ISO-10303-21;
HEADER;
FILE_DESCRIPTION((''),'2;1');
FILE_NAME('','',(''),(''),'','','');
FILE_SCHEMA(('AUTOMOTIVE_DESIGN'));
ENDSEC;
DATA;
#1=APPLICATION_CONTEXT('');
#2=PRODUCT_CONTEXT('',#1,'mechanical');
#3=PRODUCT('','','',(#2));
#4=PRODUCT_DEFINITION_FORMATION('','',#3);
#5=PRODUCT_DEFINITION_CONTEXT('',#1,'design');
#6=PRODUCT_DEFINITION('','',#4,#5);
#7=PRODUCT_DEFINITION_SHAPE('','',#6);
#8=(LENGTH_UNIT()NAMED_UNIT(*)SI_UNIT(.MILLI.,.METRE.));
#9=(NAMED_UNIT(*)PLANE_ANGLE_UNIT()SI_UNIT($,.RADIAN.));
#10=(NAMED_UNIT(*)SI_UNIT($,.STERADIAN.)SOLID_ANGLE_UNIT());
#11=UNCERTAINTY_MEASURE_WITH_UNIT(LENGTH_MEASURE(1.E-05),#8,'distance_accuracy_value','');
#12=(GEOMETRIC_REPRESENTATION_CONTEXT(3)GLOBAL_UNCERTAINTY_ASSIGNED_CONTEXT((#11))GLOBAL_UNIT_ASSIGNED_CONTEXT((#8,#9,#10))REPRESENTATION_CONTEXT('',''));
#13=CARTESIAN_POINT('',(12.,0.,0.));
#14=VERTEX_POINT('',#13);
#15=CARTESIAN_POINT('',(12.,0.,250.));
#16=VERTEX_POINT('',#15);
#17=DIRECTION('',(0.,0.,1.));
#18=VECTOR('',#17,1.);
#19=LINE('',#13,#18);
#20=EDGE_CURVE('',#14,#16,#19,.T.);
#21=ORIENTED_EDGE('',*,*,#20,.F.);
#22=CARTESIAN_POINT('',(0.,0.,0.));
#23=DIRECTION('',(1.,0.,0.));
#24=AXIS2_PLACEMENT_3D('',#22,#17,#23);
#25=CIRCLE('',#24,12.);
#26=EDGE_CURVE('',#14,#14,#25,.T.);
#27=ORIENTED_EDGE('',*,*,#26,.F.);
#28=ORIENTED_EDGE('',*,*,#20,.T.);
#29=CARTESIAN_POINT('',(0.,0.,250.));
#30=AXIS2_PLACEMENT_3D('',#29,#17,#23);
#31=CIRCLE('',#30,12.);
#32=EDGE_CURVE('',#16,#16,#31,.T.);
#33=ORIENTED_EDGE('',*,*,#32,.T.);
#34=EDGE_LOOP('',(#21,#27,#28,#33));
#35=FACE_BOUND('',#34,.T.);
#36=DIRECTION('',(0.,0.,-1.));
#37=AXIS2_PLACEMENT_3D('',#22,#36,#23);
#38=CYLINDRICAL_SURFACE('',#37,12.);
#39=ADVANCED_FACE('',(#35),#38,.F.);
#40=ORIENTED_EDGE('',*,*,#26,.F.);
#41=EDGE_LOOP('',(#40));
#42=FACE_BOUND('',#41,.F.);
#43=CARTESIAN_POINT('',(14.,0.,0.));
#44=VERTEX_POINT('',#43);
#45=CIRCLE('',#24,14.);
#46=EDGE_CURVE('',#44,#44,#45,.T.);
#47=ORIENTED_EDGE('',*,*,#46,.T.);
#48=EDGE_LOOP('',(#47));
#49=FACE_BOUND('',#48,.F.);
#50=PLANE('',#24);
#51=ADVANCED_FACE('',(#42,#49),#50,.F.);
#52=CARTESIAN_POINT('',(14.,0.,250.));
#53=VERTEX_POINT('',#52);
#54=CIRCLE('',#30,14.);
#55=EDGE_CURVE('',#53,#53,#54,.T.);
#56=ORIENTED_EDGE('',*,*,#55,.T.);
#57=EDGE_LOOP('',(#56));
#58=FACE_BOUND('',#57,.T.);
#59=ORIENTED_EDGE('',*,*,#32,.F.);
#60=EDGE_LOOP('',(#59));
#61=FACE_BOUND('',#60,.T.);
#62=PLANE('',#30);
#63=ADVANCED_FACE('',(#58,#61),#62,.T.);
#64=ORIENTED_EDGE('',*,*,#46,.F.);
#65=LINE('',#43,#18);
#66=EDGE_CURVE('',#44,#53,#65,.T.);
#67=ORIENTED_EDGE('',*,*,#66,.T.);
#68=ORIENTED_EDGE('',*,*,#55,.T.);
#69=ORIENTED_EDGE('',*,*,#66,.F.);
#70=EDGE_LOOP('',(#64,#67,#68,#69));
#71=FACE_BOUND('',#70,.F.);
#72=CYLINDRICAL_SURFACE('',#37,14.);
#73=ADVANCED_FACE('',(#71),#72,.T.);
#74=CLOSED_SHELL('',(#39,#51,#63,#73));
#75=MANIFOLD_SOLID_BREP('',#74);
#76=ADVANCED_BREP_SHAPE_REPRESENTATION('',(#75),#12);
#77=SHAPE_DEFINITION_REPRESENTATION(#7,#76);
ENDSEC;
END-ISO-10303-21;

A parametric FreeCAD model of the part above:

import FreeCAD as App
import Part
import Sketcher

V = App.Vector

doc = App.newDocument("Part")
body = doc.addObject("PartDesign::Body", "Body")

# Sketch on XY plane
sketch1 = body.newObject("Sketcher::SketchObject", "Sketch")
sketch1.AttachmentSupport = (doc.getObject("XY_Plane"), [""])
sketch1.MapMode = "FlatFace"
sketch1.addGeometry(Part.Circle(V(0, 0, 0), V(0, 0, 1), 14), False)
sketch1.addGeometry(Part.Circle(V(0, 0, 0), V(0, 0, 1), 12), False)
sketch1.addConstraint(Sketcher.Constraint("Coincident", 0, 3, -1, 1))
sketch1.addConstraint(Sketcher.Constraint("Coincident", 1, 3, -1, 1))
sketch1.addConstraint(Sketcher.Constraint("Diameter", 1, 24.0))
sketch1.addConstraint(Sketcher.Constraint("Diameter", 0, 28.0))
pad1 = body.newObject("PartDesign::Pad", "Pad")
pad1.Profile = sketch1
pad1.Length = 250

doc.recompute()
